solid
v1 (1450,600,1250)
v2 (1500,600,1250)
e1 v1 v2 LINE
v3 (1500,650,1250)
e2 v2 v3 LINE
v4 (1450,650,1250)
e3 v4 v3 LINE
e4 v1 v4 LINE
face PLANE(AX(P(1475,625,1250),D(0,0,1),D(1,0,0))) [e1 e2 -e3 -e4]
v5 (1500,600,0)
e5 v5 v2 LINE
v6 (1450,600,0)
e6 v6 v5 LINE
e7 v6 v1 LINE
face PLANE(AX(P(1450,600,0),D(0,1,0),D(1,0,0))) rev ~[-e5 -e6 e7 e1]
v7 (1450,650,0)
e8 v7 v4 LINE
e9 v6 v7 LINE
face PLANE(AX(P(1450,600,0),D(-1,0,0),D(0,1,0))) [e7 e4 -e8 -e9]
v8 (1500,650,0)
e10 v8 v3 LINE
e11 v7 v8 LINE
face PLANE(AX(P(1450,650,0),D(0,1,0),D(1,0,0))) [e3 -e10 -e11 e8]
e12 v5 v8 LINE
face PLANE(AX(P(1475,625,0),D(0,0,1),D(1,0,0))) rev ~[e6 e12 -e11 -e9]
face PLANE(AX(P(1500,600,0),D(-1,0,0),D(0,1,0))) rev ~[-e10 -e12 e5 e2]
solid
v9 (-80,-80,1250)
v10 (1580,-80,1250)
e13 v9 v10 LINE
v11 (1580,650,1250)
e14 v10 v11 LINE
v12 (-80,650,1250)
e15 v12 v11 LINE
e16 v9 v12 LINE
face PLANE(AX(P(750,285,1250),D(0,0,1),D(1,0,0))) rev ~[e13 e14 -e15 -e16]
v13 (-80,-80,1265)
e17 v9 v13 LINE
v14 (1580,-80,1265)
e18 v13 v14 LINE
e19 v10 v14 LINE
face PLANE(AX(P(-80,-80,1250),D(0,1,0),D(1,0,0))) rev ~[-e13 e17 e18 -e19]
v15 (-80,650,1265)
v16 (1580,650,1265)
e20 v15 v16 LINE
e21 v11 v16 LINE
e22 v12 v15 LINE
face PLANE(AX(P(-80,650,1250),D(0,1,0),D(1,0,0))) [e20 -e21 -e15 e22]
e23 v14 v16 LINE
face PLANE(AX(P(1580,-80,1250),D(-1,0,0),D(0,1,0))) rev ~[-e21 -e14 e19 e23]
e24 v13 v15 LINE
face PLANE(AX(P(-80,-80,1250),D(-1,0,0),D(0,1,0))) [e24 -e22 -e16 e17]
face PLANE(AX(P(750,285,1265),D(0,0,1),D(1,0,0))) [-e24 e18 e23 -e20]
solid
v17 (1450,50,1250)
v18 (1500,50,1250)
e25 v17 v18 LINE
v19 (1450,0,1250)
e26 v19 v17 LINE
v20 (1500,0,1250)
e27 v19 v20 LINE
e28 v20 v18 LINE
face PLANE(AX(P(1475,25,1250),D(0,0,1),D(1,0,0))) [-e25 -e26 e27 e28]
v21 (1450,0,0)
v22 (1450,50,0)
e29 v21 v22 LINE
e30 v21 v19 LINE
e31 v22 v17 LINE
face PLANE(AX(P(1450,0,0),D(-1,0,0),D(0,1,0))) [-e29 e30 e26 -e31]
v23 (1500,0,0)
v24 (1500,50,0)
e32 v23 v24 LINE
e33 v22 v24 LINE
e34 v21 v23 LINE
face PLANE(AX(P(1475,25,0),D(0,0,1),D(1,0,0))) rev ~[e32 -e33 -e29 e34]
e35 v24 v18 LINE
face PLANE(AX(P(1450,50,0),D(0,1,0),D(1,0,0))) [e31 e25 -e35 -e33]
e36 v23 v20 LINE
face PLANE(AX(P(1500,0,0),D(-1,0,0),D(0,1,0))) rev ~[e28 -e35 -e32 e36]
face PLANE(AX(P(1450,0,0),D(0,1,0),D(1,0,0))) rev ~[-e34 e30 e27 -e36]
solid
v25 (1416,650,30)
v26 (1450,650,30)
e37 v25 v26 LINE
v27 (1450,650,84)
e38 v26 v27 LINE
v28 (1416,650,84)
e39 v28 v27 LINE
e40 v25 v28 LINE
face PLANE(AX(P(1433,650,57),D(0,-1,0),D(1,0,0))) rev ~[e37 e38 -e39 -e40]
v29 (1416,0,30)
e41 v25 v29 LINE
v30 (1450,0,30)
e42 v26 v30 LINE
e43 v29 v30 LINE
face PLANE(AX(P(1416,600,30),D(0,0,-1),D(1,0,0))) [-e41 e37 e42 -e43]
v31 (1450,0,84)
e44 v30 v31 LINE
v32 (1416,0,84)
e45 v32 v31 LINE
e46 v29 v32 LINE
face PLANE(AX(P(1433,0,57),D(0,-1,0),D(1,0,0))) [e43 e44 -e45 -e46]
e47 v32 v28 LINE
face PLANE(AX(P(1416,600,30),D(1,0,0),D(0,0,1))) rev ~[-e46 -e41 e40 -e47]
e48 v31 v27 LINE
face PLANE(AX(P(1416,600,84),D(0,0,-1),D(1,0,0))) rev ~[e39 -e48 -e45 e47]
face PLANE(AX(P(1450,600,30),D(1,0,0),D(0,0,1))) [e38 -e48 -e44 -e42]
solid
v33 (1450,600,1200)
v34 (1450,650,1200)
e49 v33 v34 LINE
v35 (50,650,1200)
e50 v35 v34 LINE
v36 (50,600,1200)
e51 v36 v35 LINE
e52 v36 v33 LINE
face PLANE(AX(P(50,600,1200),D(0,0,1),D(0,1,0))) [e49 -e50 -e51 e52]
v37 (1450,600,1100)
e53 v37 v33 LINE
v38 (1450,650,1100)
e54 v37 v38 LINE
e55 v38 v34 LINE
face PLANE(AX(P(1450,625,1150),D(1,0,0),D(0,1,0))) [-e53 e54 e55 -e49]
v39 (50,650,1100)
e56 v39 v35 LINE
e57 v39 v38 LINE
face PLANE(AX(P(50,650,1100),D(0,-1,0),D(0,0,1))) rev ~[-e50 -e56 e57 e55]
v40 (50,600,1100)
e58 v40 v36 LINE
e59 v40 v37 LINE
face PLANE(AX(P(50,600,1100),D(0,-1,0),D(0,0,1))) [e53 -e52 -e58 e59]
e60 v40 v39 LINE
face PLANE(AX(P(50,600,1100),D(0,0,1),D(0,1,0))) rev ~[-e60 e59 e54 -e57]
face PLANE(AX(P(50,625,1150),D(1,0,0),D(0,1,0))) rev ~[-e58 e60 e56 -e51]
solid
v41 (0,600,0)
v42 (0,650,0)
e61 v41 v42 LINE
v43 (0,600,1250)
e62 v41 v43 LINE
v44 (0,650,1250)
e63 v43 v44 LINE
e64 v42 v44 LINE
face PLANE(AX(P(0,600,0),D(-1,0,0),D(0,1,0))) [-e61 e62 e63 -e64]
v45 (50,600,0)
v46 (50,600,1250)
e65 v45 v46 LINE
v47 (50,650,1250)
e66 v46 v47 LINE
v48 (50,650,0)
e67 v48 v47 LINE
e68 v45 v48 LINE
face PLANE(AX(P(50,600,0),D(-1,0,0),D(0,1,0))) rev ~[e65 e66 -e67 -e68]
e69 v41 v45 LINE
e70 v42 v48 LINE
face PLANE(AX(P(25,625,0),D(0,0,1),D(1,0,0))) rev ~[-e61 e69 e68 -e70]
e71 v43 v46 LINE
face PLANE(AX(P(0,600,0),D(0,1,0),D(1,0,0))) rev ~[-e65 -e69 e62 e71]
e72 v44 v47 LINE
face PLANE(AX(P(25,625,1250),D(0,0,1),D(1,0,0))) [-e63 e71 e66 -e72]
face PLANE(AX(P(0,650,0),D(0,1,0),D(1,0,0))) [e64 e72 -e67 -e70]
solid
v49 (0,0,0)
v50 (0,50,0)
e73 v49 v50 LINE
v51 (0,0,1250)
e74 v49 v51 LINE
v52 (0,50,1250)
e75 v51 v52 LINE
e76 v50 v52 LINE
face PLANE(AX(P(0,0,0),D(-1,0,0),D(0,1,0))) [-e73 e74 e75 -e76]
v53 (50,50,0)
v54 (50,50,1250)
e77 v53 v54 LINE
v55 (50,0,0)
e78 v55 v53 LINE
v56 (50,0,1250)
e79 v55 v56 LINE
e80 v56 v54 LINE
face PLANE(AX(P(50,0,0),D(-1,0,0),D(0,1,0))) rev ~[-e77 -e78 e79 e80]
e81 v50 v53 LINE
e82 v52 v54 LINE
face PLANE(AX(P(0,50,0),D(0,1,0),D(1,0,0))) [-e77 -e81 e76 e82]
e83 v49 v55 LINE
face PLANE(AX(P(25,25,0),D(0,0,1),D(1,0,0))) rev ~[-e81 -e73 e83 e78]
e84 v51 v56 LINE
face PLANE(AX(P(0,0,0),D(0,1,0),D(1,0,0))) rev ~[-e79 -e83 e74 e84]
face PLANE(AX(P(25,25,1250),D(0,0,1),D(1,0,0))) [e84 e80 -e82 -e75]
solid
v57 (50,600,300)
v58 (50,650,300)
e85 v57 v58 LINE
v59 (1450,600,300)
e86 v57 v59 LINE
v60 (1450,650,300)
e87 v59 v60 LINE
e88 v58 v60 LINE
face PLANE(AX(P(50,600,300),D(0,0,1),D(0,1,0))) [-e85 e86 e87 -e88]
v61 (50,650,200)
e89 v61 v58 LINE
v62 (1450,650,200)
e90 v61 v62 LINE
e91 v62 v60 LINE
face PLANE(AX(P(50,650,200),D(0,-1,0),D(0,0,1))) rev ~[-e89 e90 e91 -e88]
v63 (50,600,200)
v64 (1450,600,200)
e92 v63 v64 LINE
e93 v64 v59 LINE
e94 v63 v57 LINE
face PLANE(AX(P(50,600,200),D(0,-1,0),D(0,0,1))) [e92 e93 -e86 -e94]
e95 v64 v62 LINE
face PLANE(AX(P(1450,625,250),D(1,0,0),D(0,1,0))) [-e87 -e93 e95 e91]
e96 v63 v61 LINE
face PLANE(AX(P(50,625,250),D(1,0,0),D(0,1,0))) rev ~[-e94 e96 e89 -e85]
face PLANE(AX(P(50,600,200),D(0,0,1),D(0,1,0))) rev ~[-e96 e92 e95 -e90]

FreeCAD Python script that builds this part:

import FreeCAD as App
import Part
import Sketcher
from FreeCAD import Vector


def add_polygon(sketch, points):
    """Adds a closed chain of lines whose ends are joined by coincident constraints."""
    first, n = sketch.GeometryCount, len(points)
    for a, b in zip(points, points[1:] + points[:1]):
        sketch.addGeometry(Part.LineSegment(App.Vector(*a, 0), App.Vector(*b, 0)), False)
    for i in range(n):
        sketch.addConstraint(Sketcher.Constraint("Coincident", first + i, 2, first + (i + 1) % n, 1))

doc = App.newDocument("Part")
body = doc.addObject("PartDesign::Body", "Body")
body.AllowCompound = True

# Sketch on XY plane
sketch1 = body.newObject("Sketcher::SketchObject", "Sketch")
sketch1.AttachmentSupport = (doc.getObject("XY_Plane"), [""])
sketch1.MapMode = "FlatFace"
add_polygon(sketch1, [(0, 50), (0, 0), (50, 0), (50, 50)])  # lines 0-3
add_polygon(sketch1, [(1450, 50), (1450, 0), (1500, 0), (1500, 50)])  # lines 4-7
add_polygon(sketch1, [(1450, 650), (1450, 600), (1500, 600), (1500, 650)])  # lines 8-11
add_polygon(sketch1, [(0, 650), (0, 600), (50, 600), (50, 650)])  # lines 12-15
sketch1.addConstraint([
    Sketcher.Constraint("Vertical", 0),
    Sketcher.Constraint("Horizontal", 1),
    Sketcher.Constraint("Vertical", 2),
    Sketcher.Constraint("Horizontal", 3),
    Sketcher.Constraint("Vertical", 4),
    Sketcher.Constraint("Horizontal", 5),
    Sketcher.Constraint("Vertical", 6),
    Sketcher.Constraint("Horizontal", 7),
    Sketcher.Constraint("Vertical", 8),
    Sketcher.Constraint("Horizontal", 9),
    Sketcher.Constraint("Vertical", 10),
    Sketcher.Constraint("Horizontal", 11),
    Sketcher.Constraint("Vertical", 12),
    Sketcher.Constraint("Horizontal", 13),
    Sketcher.Constraint("Vertical", 14),
    Sketcher.Constraint("Horizontal", 15),
    Sketcher.Constraint("Coincident", 0, 2, -1, 1),
    Sketcher.Constraint("PointOnObject", 4, 2, -1),
    Sketcher.Constraint("PointOnObject", 12, 2, -2),
    Sketcher.Constraint("Horizontal", 3, 2, 6, 2),
    Sketcher.Constraint("Horizontal", 9, 2, 12, 2),
    Sketcher.Constraint("Horizontal", 11, 2, 14, 2),
    Sketcher.Constraint("Vertical", 7, 2, 8, 2),
    Sketcher.Constraint("Vertical", 6, 2, 9, 2),
    Sketcher.Constraint("Vertical", 2, 2, 13, 2),
    Sketcher.Constraint("Equal", 3, 5),
    Sketcher.Constraint("Equal", 15, 0),
    Sketcher.Constraint("Equal", 6, 8),
    Sketcher.Constraint("DistanceX", 1, 1, 1, 2, 50.0),
    Sketcher.Constraint("DistanceX", -1, 1, 4, 2, 1450.0),
    Sketcher.Constraint("DistanceY", -1, 1, 8, 2, 600.0),
])
pad1 = body.newObject("PartDesign::Pad", "Pad")
pad1.Profile = sketch1
pad1.Length = 1250
body2 = doc.addObject("PartDesign::Body", "Body001")

# Sketch on XY plane
sketch2 = body2.newObject("Sketcher::SketchObject", "Sketch001")
sketch2.AttachmentSupport = (doc.getObject("XY_Plane001"), [""])
sketch2.MapMode = "FlatFace"
sketch2.AttachmentOffset = App.Placement(Vector(0, 0, 1250), App.Rotation())
add_polygon(sketch2, [(-80, 650), (-80, -80), (1580, -80), (1580, 650)])  # lines 0-3
sketch2.addConstraint([
    Sketcher.Constraint("Vertical", 0),
    Sketcher.Constraint("Horizontal", 1),
    Sketcher.Constraint("Vertical", 2),
    Sketcher.Constraint("Horizontal", 3),
    Sketcher.Constraint("DistanceX", 1, 1, 1, 2, 1660.0),
    Sketcher.Constraint("DistanceY", 0, 2, 0, 1, 730.0),
    Sketcher.Constraint("DistanceX", 0, 2, -1, 1, 80.0),
    Sketcher.Constraint("DistanceY", 0, 2, -1, 1, 80.0),
])
pad2 = body2.newObject("PartDesign::Pad", "Pad001")
pad2.Profile = sketch2
pad2.Length = 15
body3 = doc.addObject("PartDesign::Body", "Body002")
body3.AllowCompound = True

# Sketch on YZ plane
sketch3 = body3.newObject("Sketcher::SketchObject", "Sketch002")
sketch3.AttachmentSupport = (doc.getObject("YZ_Plane002"), [""])
sketch3.MapMode = "FlatFace"
sketch3.AttachmentOffset = App.Placement(Vector(0, 0, 50), App.Rotation())
add_polygon(sketch3, [(600, 300), (600, 200), (650, 200), (650, 300)])  # lines 0-3
add_polygon(sketch3, [(600, 1200), (600, 1100), (650, 1100), (650, 1200)])  # lines 4-7
sketch3.addConstraint([
    Sketcher.Constraint("Vertical", 0),
    Sketcher.Constraint("Horizontal", 1),
    Sketcher.Constraint("Vertical", 2),
    Sketcher.Constraint("Horizontal", 3),
    Sketcher.Constraint("Vertical", 4),
    Sketcher.Constraint("Horizontal", 5),
    Sketcher.Constraint("Vertical", 6),
    Sketcher.Constraint("Horizontal", 7),
    Sketcher.Constraint("Vertical", 3, 2, 4, 2),
    Sketcher.Constraint("Vertical", 2, 2, 5, 2),
    Sketcher.Constraint("Equal", 2, 4),
    Sketcher.Constraint("DistanceX", 1, 1, 1, 2, 50.0),
    Sketcher.Constraint("DistanceY", 0, 2, 0, 1, 100.0),
    Sketcher.Constraint("DistanceX", -1, 1, 0, 2, 600.0),
    Sketcher.Constraint("DistanceY", -1, 1, 0, 2, 200.0),
    Sketcher.Constraint("DistanceY", -1, 1, 4, 2, 1100.0),
])
pad3 = body3.newObject("PartDesign::Pad", "Pad002")
pad3.Profile = sketch3
pad3.Length = 1400
body4 = doc.addObject("PartDesign::Body", "Body003")

# Sketch on XZ plane
sketch4 = body4.newObject("Sketcher::SketchObject", "Sketch003")
sketch4.AttachmentSupport = (doc.getObject("XZ_Plane003"), [""])
sketch4.MapMode = "FlatFace"
sketch4.AttachmentOffset = App.Placement(Vector(0, 0, -600), App.Rotation())
add_polygon(sketch4, [(1416, 84), (1416, 30), (1450, 30), (1450, 84)])  # lines 0-3
sketch4.addConstraint([
    Sketcher.Constraint("Vertical", 0),
    Sketcher.Constraint("Horizontal", 1),
    Sketcher.Constraint("Vertical", 2),
    Sketcher.Constraint("Horizontal", 3),
    Sketcher.Constraint("DistanceX", 1, 1, 1, 2, 34.0),
    Sketcher.Constraint("DistanceY", 0, 2, 0, 1, 54.0),
    Sketcher.Constraint("DistanceX", -1, 1, 0, 2, 1416.0),
    Sketcher.Constraint("DistanceY", -1, 1, 0, 2, 30.0),
])
pad4 = body4.newObject("PartDesign::Pad", "Pad003")
pad4.Profile = sketch4
pad4.Type = "TwoLengths"
pad4.Length = 600
pad4.Length2 = 50

doc.recompute()
